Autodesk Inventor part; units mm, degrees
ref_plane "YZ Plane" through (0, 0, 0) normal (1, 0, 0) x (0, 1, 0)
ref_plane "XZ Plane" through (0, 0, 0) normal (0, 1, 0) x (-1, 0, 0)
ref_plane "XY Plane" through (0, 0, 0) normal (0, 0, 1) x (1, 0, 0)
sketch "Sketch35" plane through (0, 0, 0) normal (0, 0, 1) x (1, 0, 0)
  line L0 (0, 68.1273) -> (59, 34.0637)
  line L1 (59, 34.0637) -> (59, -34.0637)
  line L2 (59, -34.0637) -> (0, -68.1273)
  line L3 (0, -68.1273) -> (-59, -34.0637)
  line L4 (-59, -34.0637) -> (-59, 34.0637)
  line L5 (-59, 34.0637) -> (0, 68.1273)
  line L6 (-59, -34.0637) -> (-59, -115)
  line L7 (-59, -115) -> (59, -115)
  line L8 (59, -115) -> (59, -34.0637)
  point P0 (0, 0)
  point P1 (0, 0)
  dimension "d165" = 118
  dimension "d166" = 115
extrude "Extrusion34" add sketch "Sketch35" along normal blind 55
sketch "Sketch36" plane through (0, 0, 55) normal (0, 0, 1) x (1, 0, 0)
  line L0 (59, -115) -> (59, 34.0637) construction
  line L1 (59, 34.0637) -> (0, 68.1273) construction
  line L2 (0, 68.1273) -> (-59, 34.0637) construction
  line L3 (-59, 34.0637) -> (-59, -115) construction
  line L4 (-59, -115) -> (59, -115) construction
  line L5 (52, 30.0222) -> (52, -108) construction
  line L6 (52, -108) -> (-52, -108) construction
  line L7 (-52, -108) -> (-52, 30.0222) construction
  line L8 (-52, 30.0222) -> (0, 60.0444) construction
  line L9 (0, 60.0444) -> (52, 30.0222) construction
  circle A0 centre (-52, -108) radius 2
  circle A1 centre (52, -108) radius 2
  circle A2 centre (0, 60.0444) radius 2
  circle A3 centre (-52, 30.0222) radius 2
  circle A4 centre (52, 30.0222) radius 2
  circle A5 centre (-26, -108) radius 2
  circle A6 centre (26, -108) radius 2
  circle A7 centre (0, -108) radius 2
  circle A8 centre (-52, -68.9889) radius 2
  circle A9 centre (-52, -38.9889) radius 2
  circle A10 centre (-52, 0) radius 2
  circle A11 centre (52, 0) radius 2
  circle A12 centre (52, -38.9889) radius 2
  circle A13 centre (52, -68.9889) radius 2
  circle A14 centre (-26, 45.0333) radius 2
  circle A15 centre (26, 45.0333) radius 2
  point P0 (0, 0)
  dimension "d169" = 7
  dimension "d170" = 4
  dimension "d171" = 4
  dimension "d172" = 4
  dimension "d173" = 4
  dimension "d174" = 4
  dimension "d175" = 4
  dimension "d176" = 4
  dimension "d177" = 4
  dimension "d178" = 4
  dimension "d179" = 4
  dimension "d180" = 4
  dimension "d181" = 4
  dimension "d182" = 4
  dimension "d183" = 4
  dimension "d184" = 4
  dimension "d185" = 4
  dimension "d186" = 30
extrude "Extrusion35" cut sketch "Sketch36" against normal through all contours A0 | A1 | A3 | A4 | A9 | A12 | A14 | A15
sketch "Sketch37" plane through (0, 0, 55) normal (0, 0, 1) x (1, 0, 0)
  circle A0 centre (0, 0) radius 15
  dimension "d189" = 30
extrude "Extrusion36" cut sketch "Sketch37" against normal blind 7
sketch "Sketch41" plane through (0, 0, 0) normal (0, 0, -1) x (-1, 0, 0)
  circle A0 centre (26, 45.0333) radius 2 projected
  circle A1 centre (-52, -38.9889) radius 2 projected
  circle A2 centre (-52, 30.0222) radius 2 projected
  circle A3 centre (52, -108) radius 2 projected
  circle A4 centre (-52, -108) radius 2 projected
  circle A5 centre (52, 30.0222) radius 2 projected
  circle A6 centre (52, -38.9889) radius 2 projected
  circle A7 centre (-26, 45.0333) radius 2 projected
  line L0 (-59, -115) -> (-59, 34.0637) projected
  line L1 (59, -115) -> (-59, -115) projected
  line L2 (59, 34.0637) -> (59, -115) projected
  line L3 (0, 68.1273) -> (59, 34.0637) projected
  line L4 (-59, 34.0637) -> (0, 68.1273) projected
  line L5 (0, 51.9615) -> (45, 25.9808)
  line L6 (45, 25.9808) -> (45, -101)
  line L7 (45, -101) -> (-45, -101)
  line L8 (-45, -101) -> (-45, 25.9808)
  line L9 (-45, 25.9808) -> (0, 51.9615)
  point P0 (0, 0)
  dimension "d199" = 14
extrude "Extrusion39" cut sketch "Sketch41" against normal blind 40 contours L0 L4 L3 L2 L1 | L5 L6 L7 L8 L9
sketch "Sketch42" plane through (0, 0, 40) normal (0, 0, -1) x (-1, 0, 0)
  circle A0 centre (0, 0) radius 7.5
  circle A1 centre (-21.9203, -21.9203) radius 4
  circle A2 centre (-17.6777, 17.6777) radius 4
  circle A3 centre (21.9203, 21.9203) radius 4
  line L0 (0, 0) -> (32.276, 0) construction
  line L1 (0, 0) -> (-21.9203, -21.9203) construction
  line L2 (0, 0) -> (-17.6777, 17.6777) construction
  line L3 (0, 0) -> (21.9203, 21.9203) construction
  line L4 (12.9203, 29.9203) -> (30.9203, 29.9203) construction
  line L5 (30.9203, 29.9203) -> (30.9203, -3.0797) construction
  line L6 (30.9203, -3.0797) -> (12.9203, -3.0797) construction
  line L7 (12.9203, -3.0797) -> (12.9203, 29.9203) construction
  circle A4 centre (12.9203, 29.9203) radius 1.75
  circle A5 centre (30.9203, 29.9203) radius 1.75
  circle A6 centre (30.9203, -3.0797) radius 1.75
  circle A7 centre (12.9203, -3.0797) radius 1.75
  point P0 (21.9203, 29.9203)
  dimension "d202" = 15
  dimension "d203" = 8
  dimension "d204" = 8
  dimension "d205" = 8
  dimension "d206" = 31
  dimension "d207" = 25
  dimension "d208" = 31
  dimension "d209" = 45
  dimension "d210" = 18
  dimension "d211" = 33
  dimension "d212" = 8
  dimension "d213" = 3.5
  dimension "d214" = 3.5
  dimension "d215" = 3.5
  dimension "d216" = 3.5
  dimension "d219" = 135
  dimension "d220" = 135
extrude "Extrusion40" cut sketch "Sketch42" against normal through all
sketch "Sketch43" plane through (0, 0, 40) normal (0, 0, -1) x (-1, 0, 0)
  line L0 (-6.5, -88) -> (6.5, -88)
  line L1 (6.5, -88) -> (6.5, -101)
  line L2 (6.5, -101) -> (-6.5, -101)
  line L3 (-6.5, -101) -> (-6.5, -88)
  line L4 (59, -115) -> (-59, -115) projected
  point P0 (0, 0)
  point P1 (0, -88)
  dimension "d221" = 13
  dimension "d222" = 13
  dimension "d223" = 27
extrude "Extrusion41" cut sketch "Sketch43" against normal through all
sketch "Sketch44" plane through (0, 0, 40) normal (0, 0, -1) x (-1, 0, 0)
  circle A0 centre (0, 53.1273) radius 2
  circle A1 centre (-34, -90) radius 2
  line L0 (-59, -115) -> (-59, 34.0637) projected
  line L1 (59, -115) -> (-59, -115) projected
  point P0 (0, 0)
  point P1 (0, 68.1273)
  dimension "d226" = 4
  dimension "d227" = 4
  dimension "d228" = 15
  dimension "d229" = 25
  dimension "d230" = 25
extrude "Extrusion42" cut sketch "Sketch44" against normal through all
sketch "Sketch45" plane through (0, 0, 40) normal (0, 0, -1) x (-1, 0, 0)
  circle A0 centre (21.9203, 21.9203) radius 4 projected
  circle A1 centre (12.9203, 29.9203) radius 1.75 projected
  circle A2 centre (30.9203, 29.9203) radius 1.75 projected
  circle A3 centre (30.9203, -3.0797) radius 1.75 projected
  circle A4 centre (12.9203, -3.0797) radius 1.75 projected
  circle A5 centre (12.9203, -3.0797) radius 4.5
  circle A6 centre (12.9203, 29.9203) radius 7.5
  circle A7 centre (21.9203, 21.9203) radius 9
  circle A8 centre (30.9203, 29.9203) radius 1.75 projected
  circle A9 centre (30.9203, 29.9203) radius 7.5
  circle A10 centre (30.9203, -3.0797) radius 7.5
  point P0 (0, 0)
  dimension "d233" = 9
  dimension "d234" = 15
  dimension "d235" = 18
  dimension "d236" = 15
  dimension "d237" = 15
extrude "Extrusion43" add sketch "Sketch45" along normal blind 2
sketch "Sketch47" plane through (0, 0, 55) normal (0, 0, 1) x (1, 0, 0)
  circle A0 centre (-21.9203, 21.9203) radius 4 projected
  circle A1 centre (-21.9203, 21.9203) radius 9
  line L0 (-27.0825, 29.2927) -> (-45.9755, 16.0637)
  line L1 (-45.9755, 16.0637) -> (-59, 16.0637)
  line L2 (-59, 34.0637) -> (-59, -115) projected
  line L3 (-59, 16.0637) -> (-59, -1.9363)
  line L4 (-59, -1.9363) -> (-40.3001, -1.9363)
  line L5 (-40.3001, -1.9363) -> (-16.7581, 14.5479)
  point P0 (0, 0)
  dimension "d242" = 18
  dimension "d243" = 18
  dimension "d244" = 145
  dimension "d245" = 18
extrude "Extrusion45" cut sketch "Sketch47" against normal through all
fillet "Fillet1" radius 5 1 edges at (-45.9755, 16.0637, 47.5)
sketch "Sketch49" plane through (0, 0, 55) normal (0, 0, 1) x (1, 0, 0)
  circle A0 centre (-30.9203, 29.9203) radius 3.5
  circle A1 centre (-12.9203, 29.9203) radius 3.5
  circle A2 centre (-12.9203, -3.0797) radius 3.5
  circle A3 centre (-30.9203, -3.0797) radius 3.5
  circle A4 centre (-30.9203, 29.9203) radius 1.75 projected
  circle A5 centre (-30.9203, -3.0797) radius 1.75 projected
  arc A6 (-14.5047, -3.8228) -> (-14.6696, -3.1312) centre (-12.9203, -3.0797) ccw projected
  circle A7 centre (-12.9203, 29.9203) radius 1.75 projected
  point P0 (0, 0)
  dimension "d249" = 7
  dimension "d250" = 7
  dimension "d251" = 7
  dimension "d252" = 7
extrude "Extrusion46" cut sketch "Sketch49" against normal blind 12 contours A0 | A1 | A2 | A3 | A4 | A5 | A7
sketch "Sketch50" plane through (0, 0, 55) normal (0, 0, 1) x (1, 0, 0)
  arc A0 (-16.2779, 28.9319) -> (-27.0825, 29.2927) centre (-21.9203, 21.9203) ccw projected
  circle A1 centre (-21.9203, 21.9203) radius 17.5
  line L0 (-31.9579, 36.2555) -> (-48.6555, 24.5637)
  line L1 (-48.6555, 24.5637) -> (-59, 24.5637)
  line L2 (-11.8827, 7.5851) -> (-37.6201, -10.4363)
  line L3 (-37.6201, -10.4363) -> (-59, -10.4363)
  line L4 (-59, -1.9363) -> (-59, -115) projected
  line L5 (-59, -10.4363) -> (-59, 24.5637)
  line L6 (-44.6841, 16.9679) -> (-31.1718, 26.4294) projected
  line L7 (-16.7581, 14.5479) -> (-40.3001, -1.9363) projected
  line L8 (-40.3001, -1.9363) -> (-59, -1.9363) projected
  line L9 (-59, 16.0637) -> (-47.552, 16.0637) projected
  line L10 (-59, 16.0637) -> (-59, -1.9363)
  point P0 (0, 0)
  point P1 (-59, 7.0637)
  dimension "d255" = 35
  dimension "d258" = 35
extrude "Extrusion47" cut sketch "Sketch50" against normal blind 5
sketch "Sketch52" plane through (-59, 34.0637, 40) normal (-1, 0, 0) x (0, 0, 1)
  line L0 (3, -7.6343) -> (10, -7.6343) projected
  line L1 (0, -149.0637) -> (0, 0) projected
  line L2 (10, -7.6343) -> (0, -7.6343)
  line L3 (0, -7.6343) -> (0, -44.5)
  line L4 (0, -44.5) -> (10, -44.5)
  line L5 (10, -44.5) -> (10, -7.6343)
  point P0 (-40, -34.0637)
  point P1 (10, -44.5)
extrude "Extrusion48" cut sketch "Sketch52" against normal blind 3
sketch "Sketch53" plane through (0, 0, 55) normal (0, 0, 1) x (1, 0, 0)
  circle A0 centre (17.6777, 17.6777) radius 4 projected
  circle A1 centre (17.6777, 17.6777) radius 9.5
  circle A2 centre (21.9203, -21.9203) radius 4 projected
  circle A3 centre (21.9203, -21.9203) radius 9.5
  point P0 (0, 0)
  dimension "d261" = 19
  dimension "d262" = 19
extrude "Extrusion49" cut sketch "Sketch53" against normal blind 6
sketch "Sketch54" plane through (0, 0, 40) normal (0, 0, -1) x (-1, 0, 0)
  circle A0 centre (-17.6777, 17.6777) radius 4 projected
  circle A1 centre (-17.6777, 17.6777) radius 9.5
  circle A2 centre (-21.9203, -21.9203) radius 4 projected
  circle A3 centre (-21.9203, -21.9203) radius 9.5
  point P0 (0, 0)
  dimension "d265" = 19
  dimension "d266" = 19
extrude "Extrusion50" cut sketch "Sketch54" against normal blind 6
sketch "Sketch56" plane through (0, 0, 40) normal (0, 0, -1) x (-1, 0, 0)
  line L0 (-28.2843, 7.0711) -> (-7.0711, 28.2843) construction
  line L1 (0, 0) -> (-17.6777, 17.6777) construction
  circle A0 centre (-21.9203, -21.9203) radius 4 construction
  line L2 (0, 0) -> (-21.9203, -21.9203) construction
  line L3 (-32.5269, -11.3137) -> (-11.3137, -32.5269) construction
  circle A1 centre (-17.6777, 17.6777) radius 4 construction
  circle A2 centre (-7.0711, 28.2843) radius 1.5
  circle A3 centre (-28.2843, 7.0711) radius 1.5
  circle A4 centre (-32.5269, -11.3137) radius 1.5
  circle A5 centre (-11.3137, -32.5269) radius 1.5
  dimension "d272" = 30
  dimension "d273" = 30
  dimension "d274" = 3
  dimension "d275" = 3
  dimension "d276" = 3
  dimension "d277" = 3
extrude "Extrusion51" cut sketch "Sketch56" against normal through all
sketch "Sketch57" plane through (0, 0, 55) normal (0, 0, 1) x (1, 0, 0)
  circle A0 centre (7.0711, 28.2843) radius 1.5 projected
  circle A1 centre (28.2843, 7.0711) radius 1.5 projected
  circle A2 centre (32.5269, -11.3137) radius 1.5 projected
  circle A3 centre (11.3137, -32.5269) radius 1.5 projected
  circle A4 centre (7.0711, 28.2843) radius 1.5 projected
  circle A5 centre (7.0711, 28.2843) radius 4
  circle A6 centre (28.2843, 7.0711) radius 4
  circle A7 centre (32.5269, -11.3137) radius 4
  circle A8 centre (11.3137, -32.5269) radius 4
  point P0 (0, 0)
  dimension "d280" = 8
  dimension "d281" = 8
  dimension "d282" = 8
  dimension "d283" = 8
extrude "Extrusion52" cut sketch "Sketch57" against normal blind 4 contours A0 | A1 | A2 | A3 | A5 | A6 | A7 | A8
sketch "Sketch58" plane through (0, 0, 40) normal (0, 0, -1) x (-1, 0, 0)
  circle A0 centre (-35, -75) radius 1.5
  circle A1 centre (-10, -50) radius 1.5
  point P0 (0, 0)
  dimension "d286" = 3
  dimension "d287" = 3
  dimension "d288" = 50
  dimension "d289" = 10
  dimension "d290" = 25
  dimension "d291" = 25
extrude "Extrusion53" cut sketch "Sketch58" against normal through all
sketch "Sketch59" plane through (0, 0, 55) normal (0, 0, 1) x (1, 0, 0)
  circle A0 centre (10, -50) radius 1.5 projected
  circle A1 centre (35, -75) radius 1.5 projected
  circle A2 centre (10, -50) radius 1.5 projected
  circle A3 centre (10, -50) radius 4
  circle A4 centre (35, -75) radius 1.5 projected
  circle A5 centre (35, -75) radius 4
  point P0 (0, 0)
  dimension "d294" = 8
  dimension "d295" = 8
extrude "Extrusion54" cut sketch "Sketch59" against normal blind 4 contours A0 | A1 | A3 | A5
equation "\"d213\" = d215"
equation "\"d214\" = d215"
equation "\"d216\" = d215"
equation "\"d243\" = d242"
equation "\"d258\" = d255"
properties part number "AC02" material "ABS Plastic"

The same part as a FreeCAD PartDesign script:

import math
import FreeCAD as App
import Part
import Sketcher
from FreeCAD import Vector
Q = App.Units.Quantity


def edges_at(feature, points):
    """Names of the edges that pass closest to the given points."""
    edges = feature.Shape.Edges
    near = lambda p: min(range(len(edges)), key=lambda i: edges[i].distToShape(Part.Vertex(*p))[0])
    return sorted({f"Edge{near(p) + 1}" for p in points})

doc = App.newDocument("Part")
body = doc.addObject("PartDesign::Body", "Body")

# Sketch on XY plane
sketch1 = body.newObject("Sketcher::SketchObject", "Sketch")
sketch1.AttachmentSupport = (doc.getObject("XY_Plane"), [""])
sketch1.MapMode = "FlatFace"
sketch1.addGeometry([
    Part.LineSegment(Vector(59, 34.0637, 0), Vector(0, 68.1273, 0)),  # 0
    Part.LineSegment(Vector(0, 68.1273, 0), Vector(-59, 34.0637, 0)),  # 1
    Part.LineSegment(Vector(-59, 34.0637, 0), Vector(-59, -115, 0)),  # 2
    Part.LineSegment(Vector(-59, -115, 0), Vector(59, -115, 0)),  # 3
    Part.LineSegment(Vector(59, -115, 0), Vector(59, 34.0637, 0)),  # 4
], False)
sketch1.addConstraint([
    Sketcher.Constraint("Coincident", 0, 2, 1, 1),
    Sketcher.Constraint("Coincident", 1, 2, 2, 1),
    Sketcher.Constraint("Coincident", 2, 2, 3, 1),
    Sketcher.Constraint("Coincident", 3, 2, 4, 1),
    Sketcher.Constraint("Coincident", 4, 2, 0, 1),
    Sketcher.Constraint("Vertical", 2),
    Sketcher.Constraint("Horizontal", 3),
    Sketcher.Constraint("Vertical", 4),
    Sketcher.Constraint("Symmetric", 1, 2, 4, 2, -2),
    Sketcher.Constraint("PointOnObject", 0, 2, -2),
    Sketcher.Constraint("DistanceX", 3, 1, 3, 2, 118.0),
    Sketcher.Constraint("DistanceY", 2, 2, -1, 1, 115.0),
    Sketcher.Constraint("Angle", 0, Q("150 deg")),
    Sketcher.Constraint("DistanceY", 2, 2, 2, 1, 149.0637),
])
pad1 = body.newObject("PartDesign::Pad", "Pad")
pad1.Profile = sketch1
pad1.Length = 55

# Sketch on XY plane
sketch2 = body.newObject("Sketcher::SketchObject", "Sketch001")
sketch2.AttachmentSupport = (doc.getObject("XY_Plane"), [""])
sketch2.MapMode = "FlatFace"
sketch2.AttachmentOffset = App.Placement(Vector(0, 0, 55), App.Rotation())
sketch2.addGeometry([
    Part.Circle(Vector(-52, -108, 0), Vector(0, 0, 1), 2),  # 0
    Part.Circle(Vector(52, -108, 0), Vector(0, 0, 1), 2),  # 1
    Part.Circle(Vector(-52, 30.0222, 0), Vector(0, 0, 1), 2),  # 2
    Part.Circle(Vector(52, 30.0222, 0), Vector(0, 0, 1), 2),  # 3
    Part.Circle(Vector(-52, -38.9889, 0), Vector(0, 0, 1), 2),  # 4
    Part.Circle(Vector(52, -38.9889, 0), Vector(0, 0, 1), 2),  # 5
    Part.Circle(Vector(-26, 45.0333, 0), Vector(0, 0, 1), 2),  # 6
    Part.Circle(Vector(26, 45.0333, 0), Vector(0, 0, 1), 2),  # 7
], False)
sketch2.addConstraint([
    Sketcher.Constraint("Equal", 0, 1),
    Sketcher.Constraint("Equal", 1, 2),
    Sketcher.Constraint("Equal", 2, 3),
    Sketcher.Constraint("Equal", 3, 4),
    Sketcher.Constraint("Equal", 4, 5),
    Sketcher.Constraint("Equal", 5, 6),
    Sketcher.Constraint("Equal", 6, 7),
    Sketcher.Constraint("Symmetric", 0, 3, 1, 3, -2),
    Sketcher.Constraint("Symmetric", 2, 3, 3, 3, -2),
    Sketcher.Constraint("Symmetric", 4, 3, 5, 3, -2),
    Sketcher.Constraint("Symmetric", 6, 3, 7, 3, -2),
    Sketcher.Constraint("Vertical", 0, 3, 2, 3),
    Sketcher.Constraint("Vertical", 2, 3, 4, 3),
    Sketcher.Constraint("Diameter", 0, 4.0),
    Sketcher.Constraint("DistanceX", 0, 3, -1, 1, 52.0),
    Sketcher.Constraint("DistanceY", 0, 3, -1, 1, 108.0),
    Sketcher.Constraint("DistanceX", 6, 3, -1, 1, 26.0),
    Sketcher.Constraint("DistanceY", 4, 3, -1, 1, 38.989),
    Sketcher.Constraint("DistanceY", 4, 3, 2, 3, 69.011),
    Sketcher.Constraint("DistanceY", 2, 3, 6, 3, 15.011),
])
pocket1 = body.newObject("PartDesign::Pocket", "Pocket")
pocket1.Profile = sketch2
pocket1.Type = "ThroughAll"

# Sketch on XY plane
sketch3 = body.newObject("Sketcher::SketchObject", "Sketch002")
sketch3.AttachmentSupport = (doc.getObject("XY_Plane"), [""])
sketch3.MapMode = "FlatFace"
sketch3.AttachmentOffset = App.Placement(Vector(0, 0, 55), App.Rotation())
sketch3.addGeometry(Part.Circle(Vector(0, 0, 0), Vector(0, 0, 1), 15), False)
sketch3.addConstraint([
    Sketcher.Constraint("Coincident", 0, 3, -1, 1),
    Sketcher.Constraint("Diameter", 0, 30.0),
])
pocket2 = body.newObject("PartDesign::Pocket", "Pocket001")
pocket2.Profile = sketch3
pocket2.Length = 7

# Sketch on XY plane
sketch4 = body.newObject("Sketcher::SketchObject", "Sketch003")
sketch4.AttachmentSupport = (doc.getObject("XY_Plane"), [""])
sketch4.MapMode = "FlatFace"
sketch4.addGeometry([
    Part.LineSegment(Vector(59, 34.0637, 0), Vector(59, -115, 0)),  # 0
    Part.LineSegment(Vector(59, -115, 0), Vector(-59, -115, 0)),  # 1
    Part.LineSegment(Vector(-59, -115, 0), Vector(-59, 34.0637, 0)),  # 2
    Part.LineSegment(Vector(-59, 34.0637, 0), Vector(0, 68.1273, 0)),  # 3
    Part.LineSegment(Vector(0, 68.1273, 0), Vector(59, 34.0637, 0)),  # 4
    Part.Circle(Vector(52, -108, 0), Vector(0, 0, 1), 2),  # 5
    Part.Circle(Vector(52, -38.9889, 0), Vector(0, 0, 1), 2),  # 6
    Part.Circle(Vector(-52, -108, 0), Vector(0, 0, 1), 2),  # 7
    Part.Circle(Vector(-52, -38.9889, 0), Vector(0, 0, 1), 2),  # 8
    Part.Circle(Vector(52, 30.0222, 0), Vector(0, 0, 1), 2),  # 9
    Part.Circle(Vector(26, 45.0333, 0), Vector(0, 0, 1), 2),  # 10
    Part.Circle(Vector(-26, 45.0333, 0), Vector(0, 0, 1), 2),  # 11
    Part.Circle(Vector(-52, 30.0222, 0), Vector(0, 0, 1), 2),  # 12
], False)
sketch4.addConstraint([
    Sketcher.Constraint("Coincident", 0, 2, 1, 1),
    Sketcher.Constraint("Coincident", 1, 2, 2, 1),
    Sketcher.Constraint("Coincident", 2, 2, 3, 1),
    Sketcher.Constraint("Coincident", 3, 2, 4, 1),
    Sketcher.Constraint("Coincident", 4, 2, 0, 1),
    Sketcher.Constraint("Vertical", 0),
    Sketcher.Constraint("Horizontal", 1),
    Sketcher.Constraint("Vertical", 2),
    Sketcher.Constraint("Equal", 5, 6),
    Sketcher.Constraint("Equal", 6, 7),
    Sketcher.Constraint("Equal", 7, 8),
    Sketcher.Constraint("Equal", 8, 9),
    Sketcher.Constraint("Equal", 9, 10),
    Sketcher.Constraint("Equal", 10, 11),
    Sketcher.Constraint("Equal", 11, 12),
    Sketcher.Constraint("Symmetric", 5, 3, 7, 3, -2),
    Sketcher.Constraint("Symmetric", 6, 3, 8, 3, -2),
    Sketcher.Constraint("Symmetric", 10, 3, 11, 3, -2),
    Sketcher.Constraint("Symmetric", 9, 3, 12, 3, -2),
    Sketcher.Constraint("Symmetric", 2, 2, 4, 2, -2),
    Sketcher.Constraint("PointOnObject", 3, 2, -2),
    Sketcher.Constraint("Vertical", 5, 3, 6, 3),
    Sketcher.Constraint("Vertical", 6, 3, 9, 3),
    Sketcher.Constraint("Diameter", 5, 4.0),
    Sketcher.Constraint("DistanceX", 1, 2, 1, 1, 118.0),
    Sketcher.Constraint("Angle", 3, Q("30 deg")),
    Sketcher.Constraint("DistanceX", -1, 1, 5, 3, 52.0),
    Sketcher.Constraint("DistanceY", 5, 3, -1, 1, 108.0),
    Sketcher.Constraint("DistanceX", -1, 1, 10, 3, 26.0),
    Sketcher.Constraint("DistanceY", 0, 2, -1, 1, 115.0),
    Sketcher.Constraint("DistanceY", 0, 2, 0, 1, 149.0637),
    Sketcher.Constraint("DistanceY", 6, 3, -1, 1, 38.989),
    Sketcher.Constraint("DistanceY", 6, 3, 9, 3, 69.011),
    Sketcher.Constraint("DistanceY", 9, 3, 10, 3, 15.011),
])
pocket3 = body.newObject("PartDesign::Pocket", "Pocket002")
pocket3.Profile = sketch4
pocket3.Length = 40
pocket3.Reversed = True

# Sketch on XY plane
sketch5 = body.newObject("Sketcher::SketchObject", "Sketch004")
sketch5.AttachmentSupport = (doc.getObject("XY_Plane"), [""])
sketch5.MapMode = "FlatFace"
sketch5.AttachmentOffset = App.Placement(Vector(0, 0, 40), App.Rotation())
sketch5.addGeometry([
    Part.Circle(Vector(0, 0, 0), Vector(0, 0, 1), 7.5),  # 0
    Part.Circle(Vector(21.9203, -21.9203, 0), Vector(0, 0, 1), 4),  # 1
    Part.Circle(Vector(17.6777, 17.6777, 0), Vector(0, 0, 1), 4),  # 2
    Part.Circle(Vector(-21.9203, 21.9203, 0), Vector(0, 0, 1), 4),  # 3
    Part.Circle(Vector(-12.9203, 29.9203, 0), Vector(0, 0, 1), 1.75),  # 4
    Part.Circle(Vector(-30.9203, 29.9203, 0), Vector(0, 0, 1), 1.75),  # 5
    Part.Circle(Vector(-30.9203, -3.0797, 0), Vector(0, 0, 1), 1.75),  # 6
    Part.Circle(Vector(-12.9203, -3.0797, 0), Vector(0, 0, 1), 1.75),  # 7
], False)
sketch5.addConstraint([
    Sketcher.Constraint("Coincident", 0, 3, -1, 1),
    Sketcher.Constraint("Equal", 1, 2),
    Sketcher.Constraint("Equal", 2, 3),
    Sketcher.Constraint("Equal", 4, 5),
    Sketcher.Constraint("Equal", 5, 6),
    Sketcher.Constraint("Equal", 6, 7),
    Sketcher.Constraint("Symmetric", 1, 3, 3, 3, -1, 1),
    Sketcher.Constraint("Horizontal", 4, 3, 5, 3),
    Sketcher.Constraint("Horizontal", 6, 3, 7, 3),
    Sketcher.Constraint("Vertical", 5, 3, 6, 3),
    Sketcher.Constraint("Vertical", 4, 3, 7, 3),
    Sketcher.Constraint("Diameter", 0, 15.0),
    Sketcher.Constraint("Diameter", 1, 8.0),
    Sketcher.Constraint("Diameter", 4, 3.5),
    Sketcher.Constraint("DistanceY", 3, 3, 4, 3, 8.0),
    Sketcher.Constraint("DistanceX", 5, 3, 4, 3, 18.0),
    Sketcher.Constraint("DistanceY", 6, 3, 3, 3, 25.0),
    Sketcher.Constraint("DistanceX", 3, 3, 4, 3, 9.0),
    Sketcher.Constraint("DistanceY", 1, 3, 2, 3, 39.598),
    Sketcher.Constraint("DistanceX", 3, 3, 2, 3, 39.598),
    Sketcher.Constraint("DistanceX", -1, 1, 1, 3, 21.9203),
    Sketcher.Constraint("DistanceY", 1, 3, -1, 1, 21.9203),
])
pocket4 = body.newObject("PartDesign::Pocket", "Pocket003")
pocket4.Profile = sketch5
pocket4.Type = "ThroughAll"
pocket4.Reversed = True

# Sketch on XY plane
sketch6 = body.newObject("Sketcher::SketchObject", "Sketch005")
sketch6.AttachmentSupport = (doc.getObject("XY_Plane"), [""])
sketch6.MapMode = "FlatFace"
sketch6.AttachmentOffset = App.Placement(Vector(0, 0, 40), App.Rotation())
sketch6.addGeometry([
    Part.LineSegment(Vector(-6.5, -88, 0), Vector(6.5, -88, 0)),
    Part.LineSegment(Vector(6.5, -88, 0), Vector(6.5, -101, 0)),
    Part.LineSegment(Vector(6.5, -101, 0), Vector(-6.5, -101, 0)),
    Part.LineSegment(Vector(-6.5, -101, 0), Vector(-6.5, -88, 0)),
], False)
sketch6.addConstraint([
    Sketcher.Constraint("Coincident", 0, 2, 1, 1),
    Sketcher.Constraint("Coincident", 1, 2, 2, 1),
    Sketcher.Constraint("Coincident", 2, 2, 3, 1),
    Sketcher.Constraint("Coincident", 3, 2, 0, 1),
    Sketcher.Constraint("Horizontal", 0),
    Sketcher.Constraint("Vertical", 1),
    Sketcher.Constraint("Horizontal", 2),
    Sketcher.Constraint("Vertical", 3),
    Sketcher.Constraint("Equal", 2, 1),
    Sketcher.Constraint("DistanceX", 0, 1, 0, 2, 13.0),
    Sketcher.Constraint("DistanceY", 0, 2, -1, 1, 88.0),
    Sketcher.Constraint("DistanceX", -1, 1, 0, 2, 6.5),
])
pocket5 = body.newObject("PartDesign::Pocket", "Pocket004")
pocket5.Profile = sketch6
pocket5.Type = "ThroughAll"
pocket5.Reversed = True

# Sketch on XY plane
sketch7 = body.newObject("Sketcher::SketchObject", "Sketch006")
sketch7.AttachmentSupport = (doc.getObject("XY_Plane"), [""])
sketch7.MapMode = "FlatFace"
sketch7.AttachmentOffset = App.Placement(Vector(0, 0, 40), App.Rotation())
sketch7.addGeometry([
    Part.Circle(Vector(0, 53.1273, 0), Vector(0, 0, 1), 2),
    Part.Circle(Vector(34, -90, 0), Vector(0, 0, 1), 2),
], False)
sketch7.addConstraint([
    Sketcher.Constraint("Equal", 0, 1),
    Sketcher.Constraint("PointOnObject", 0, 3, -2),
    Sketcher.Constraint("Diameter", 0, 4.0),
    Sketcher.Constraint("DistanceX", -1, 1, 1, 3, 34.0),
    Sketcher.Constraint("DistanceY", 1, 3, -1, 1, 90.0),
    Sketcher.Constraint("DistanceY", -1, 1, 0, 3, 53.1273),
])
pocket6 = body.newObject("PartDesign::Pocket", "Pocket005")
pocket6.Profile = sketch7
pocket6.Type = "ThroughAll"
pocket6.Reversed = True

# Sketch on XY plane
sketch8 = body.newObject("Sketcher::SketchObject", "Sketch007")
sketch8.AttachmentSupport = (doc.getObject("XY_Plane"), [""])
sketch8.MapMode = "FlatFace"
sketch8.AttachmentOffset = App.Placement(Vector(0, 0, 40), App.Rotation())
sketch8.addGeometry([
    Part.Circle(Vector(-12.9203, -3.0797, 0), Vector(0, 0, 1), 4.5),  # 0
    Part.Circle(Vector(-12.9203, -3.0797, 0), Vector(0, 0, 1), 1.75),  # 1
    Part.ArcOfCircle(Part.Circle(Vector(-21.9203, 21.9203, 0), Vector(0, 0, 1), 9), math.radians(80.082258), math.radians(99.917742)),  # 2
    Part.ArcOfCircle(Part.Circle(Vector(-12.9203, 29.9203, 0), Vector(0, 0, 1), 7.5), math.radians(-90.106191), math.radians(173.37327)),  # 3
    Part.ArcOfCircle(Part.Circle(Vector(-21.9203, 21.9203, 0), Vector(0, 0, 1), 9), math.radians(176.815179), math.radians(363.184821)),  # 4
    Part.ArcOfCircle(Part.Circle(Vector(-30.9203, 29.9203, 0), Vector(0, 0, 1), 7.5), math.radians(6.62673), math.radians(270.106191)),  # 5
    Part.Circle(Vector(-21.9203, 21.9203, 0), Vector(0, 0, 1), 4),  # 6
    Part.Circle(Vector(-12.9203, 29.9203, 0), Vector(0, 0, 1), 1.75),  # 7
    Part.Circle(Vector(-30.9203, 29.9203, 0), Vector(0, 0, 1), 1.75),  # 8
    Part.Circle(Vector(-30.9203, -3.0797, 0), Vector(0, 0, 1), 7.5),  # 9
    Part.Circle(Vector(-30.9203, -3.0797, 0), Vector(0, 0, 1), 1.75),  # 10
], False)
sketch8.addConstraint([
    Sketcher.Constraint("Coincident", 2, 1, 3, 2),
    Sketcher.Constraint("Coincident", 3, 1, 4, 2),
    Sketcher.Constraint("Coincident", 4, 1, 5, 2),
    Sketcher.Constraint("Coincident", 5, 1, 2, 2),
    Sketcher.Constraint("Coincident", 1, 3, 0, 3),
    Sketcher.Constraint("Coincident", 4, 3, 2, 3),
    Sketcher.Constraint("Coincident", 6, 3, 2, 3),
    Sketcher.Constraint("Coincident", 7, 3, 3, 3),
    Sketcher.Constraint("Coincident", 8, 3, 5, 3),
    Sketcher.Constraint("Coincident", 10, 3, 9, 3),
    Sketcher.Constraint("Equal", 2, 4),
    Sketcher.Constraint("Equal", 3, 5),
    Sketcher.Constraint("Equal", 1, 7),
    Sketcher.Constraint("Equal", 7, 8),
    Sketcher.Constraint("Equal", 5, 9),
    Sketcher.Constraint("Equal", 8, 10),
    Sketcher.Constraint("Horizontal", 3, 3, 5, 3),
    Sketcher.Constraint("Horizontal", 1, 3, 9, 3),
    Sketcher.Constraint("Horizontal", 2, 1, 5, 1),
    Sketcher.Constraint("Vertical", 1, 3, 3, 3),
    Sketcher.Constraint("Vertical", 8, 3, 9, 3),
    Sketcher.Constraint("Diameter", 0, 9.0),
    Sketcher.Constraint("Diameter", 9, 15.0),
    Sketcher.Constraint("Radius", 2, 9.0),
    Sketcher.Constraint("Diameter", 6, 8.0),
    Sketcher.Constraint("DistanceX", 2, 3, 0, 3, 9.0),
    Sketcher.Constraint("Diameter", 1, 3.5),
    Sketcher.Constraint("DistanceY", 0, 3, 2, 3, 25.0),
    Sketcher.Constraint("DistanceY", 2, 3, 3, 3, 8.0),
    Sketcher.Constraint("DistanceX", 0, 3, -1, 1, 12.9203),
    Sketcher.Constraint("DistanceY", 0, 3, -1, 1, 3.0797),
])
pad2 = body.newObject("PartDesign::Pad", "Pad001")
pad2.Profile = sketch8
pad2.Length = 2
pad2.Reversed = True

# Sketch on XY plane
sketch9 = body.newObject("Sketcher::SketchObject", "Sketch008")
sketch9.AttachmentSupport = (doc.getObject("XY_Plane"), [""])
sketch9.MapMode = "FlatFace"
sketch9.AttachmentOffset = App.Placement(Vector(0, 0, 55), App.Rotation())
sketch9.addGeometry([
    Part.ArcOfCircle(Part.Circle(Vector(-21.9203, 21.9203, 0), Vector(0, 0, 1), 9), math.radians(-55.000052), math.radians(124.999948)),  # 0
    Part.LineSegment(Vector(-27.0825, 29.2927, 0), Vector(-45.9755, 16.0637, 0)),  # 1
    Part.LineSegment(Vector(-45.9755, 16.0637, 0), Vector(-59, 16.0637, 0)),  # 2
    Part.LineSegment(Vector(-59, 16.0637, 0), Vector(-59, -1.9363, 0)),  # 3
    Part.LineSegment(Vector(-59, -1.9363, 0), Vector(-40.3001, -1.9363, 0)),  # 4
    Part.LineSegment(Vector(-40.3001, -1.9363, 0), Vector(-16.7581, 14.5479, 0)),  # 5
    Part.Circle(Vector(-21.9203, 21.9203, 0), Vector(0, 0, 1), 4),  # 6
], False)
sketch9.addConstraint([
    Sketcher.Constraint("Tangent", 0, 2, 1, 1),
    Sketcher.Constraint("Coincident", 1, 2, 2, 1),
    Sketcher.Constraint("Coincident", 2, 2, 3, 1),
    Sketcher.Constraint("Coincident", 3, 2, 4, 1),
    Sketcher.Constraint("Coincident", 4, 2, 5, 1),
    Sketcher.Constraint("Tangent", 5, 2, 0, 1),
    Sketcher.Constraint("Horizontal", 2),
    Sketcher.Constraint("Vertical", 3),
    Sketcher.Constraint("Horizontal", 4),
    Sketcher.Constraint("Coincident", 6, 3, 0, 3),
    Sketcher.Constraint("Parallel", 1, 5),
    Sketcher.Constraint("Radius", 0, 9.0),
    Sketcher.Constraint("DistanceY", 3, 2, 3, 1, 18.0),
    Sketcher.Constraint("Angle", 1, Q("-145 deg")),
    Sketcher.Constraint("Diameter", 6, 8.0),
    Sketcher.Constraint("DistanceX", 4, 1, 4, 2, 18.7),
    Sketcher.Constraint("DistanceX", 2, 2, -1, 1, 59.0),
    Sketcher.Constraint("Distance", 1, 23.064),
    Sketcher.Constraint("DistanceY", -1, 1, 5, 2, 14.548),
])
pocket7 = body.newObject("PartDesign::Pocket", "Pocket006")
pocket7.Profile = sketch9
pocket7.Type = "ThroughAll"
doc.recompute()

fillet = body.newObject("PartDesign::Fillet", "Fillet")
fillet.Base = (pocket7, edges_at(pocket7, [(-45.975, 16.064, 47.5)]))
fillet.Radius = 5

# Sketch on XY plane
sketch10 = body.newObject("Sketcher::SketchObject", "Sketch009")
sketch10.AttachmentSupport = (doc.getObject("XY_Plane"), [""])
sketch10.MapMode = "FlatFace"
sketch10.AttachmentOffset = App.Placement(Vector(0, 0, 55), App.Rotation())
sketch10.addGeometry([
    Part.Circle(Vector(-30.9203, 29.9203, 0), Vector(0, 0, 1), 3.5),
    Part.Circle(Vector(-12.9203, 29.9203, 0), Vector(0, 0, 1), 3.5),
    Part.Circle(Vector(-12.9203, -3.0797, 0), Vector(0, 0, 1), 3.5),
    Part.Circle(Vector(-30.9203, -3.0797, 0), Vector(0, 0, 1), 3.5),
], False)
sketch10.addConstraint([
    Sketcher.Constraint("Equal", 0, 1),
    Sketcher.Constraint("Equal", 1, 2),
    Sketcher.Constraint("Equal", 2, 3),
    Sketcher.Constraint("Horizontal", 0, 3, 1, 3),
    Sketcher.Constraint("Horizontal", 2, 3, 3, 3),
    Sketcher.Constraint("Vertical", 1, 3, 2, 3),
    Sketcher.Constraint("Vertical", 0, 3, 3, 3),
    Sketcher.Constraint("Diameter", 0, 7.0),
    Sketcher.Constraint("DistanceX", 0, 3, 1, 3, 18.0),
    Sketcher.Constraint("DistanceY", 2, 3, 1, 3, 33.0),
    Sketcher.Constraint("DistanceX", 0, 3, -1, 1, 30.9203),
    Sketcher.Constraint("DistanceY", -1, 1, 0, 3, 29.9203),
])
pocket8 = body.newObject("PartDesign::Pocket", "Pocket007")
pocket8.Profile = sketch10
pocket8.Length = 12

# Sketch on XY plane
sketch11 = body.newObject("Sketcher::SketchObject", "Sketch010")
sketch11.AttachmentSupport = (doc.getObject("XY_Plane"), [""])
sketch11.MapMode = "FlatFace"
sketch11.AttachmentOffset = App.Placement(Vector(0, 0, 55), App.Rotation())
sketch11.addGeometry([
    Part.ArcOfCircle(Part.Circle(Vector(-21.9203, 21.9203, 0), Vector(0, 0, 1), 17.5), math.radians(-55.000041), math.radians(124.999959)),  # 0
    Part.LineSegment(Vector(-31.9579, 36.2555, 0), Vector(-48.6555, 24.5637, 0)),  # 1
    Part.LineSegment(Vector(-48.6555, 24.5637, 0), Vector(-59, 24.5637, 0)),  # 2
    Part.LineSegment(Vector(-59, 24.5637, 0), Vector(-59, -10.4363, 0)),  # 3
    Part.LineSegment(Vector(-59, -10.4363, 0), Vector(-37.6201, -10.4363, 0)),  # 4
    Part.LineSegment(Vector(-37.6201, -10.4363, 0), Vector(-11.8827, 7.5851, 0)),  # 5
], False)
sketch11.addConstraint([
    Sketcher.Constraint("Tangent", 0, 2, 1, 1),
    Sketcher.Constraint("Coincident", 1, 2, 2, 1),
    Sketcher.Constraint("Coincident", 2, 2, 3, 1),
    Sketcher.Constraint("Coincident", 3, 2, 4, 1),
    Sketcher.Constraint("Coincident", 4, 2, 5, 1),
    Sketcher.Constraint("Tangent", 5, 2, 0, 1),
    Sketcher.Constraint("Horizontal", 2),
    Sketcher.Constraint("Vertical", 3),
    Sketcher.Constraint("Horizontal", 4),
    Sketcher.Constraint("Parallel", 1, 5),
    Sketcher.Constraint("Radius", 0, 17.5),
    Sketcher.Constraint("DistanceY", 3, 2, 3, 1, 35.0),
    Sketcher.Constraint("Angle", 5, Q("34.9998 deg")),
    Sketcher.Constraint("DistanceX", 2, 2, -1, 1, 59.0),
    Sketcher.Constraint("DistanceX", 4, 1, 4, 2, 21.38),
    Sketcher.Constraint("Distance", 1, 20.384),
    Sketcher.Constraint("DistanceY", -1, 1, 5, 2, 7.585),
])
pocket9 = body.newObject("PartDesign::Pocket", "Pocket008")
pocket9.Profile = sketch11
pocket9.Length = 5

# Sketch on YZ plane
sketch12 = body.newObject("Sketcher::SketchObject", "Sketch011")
sketch12.AttachmentSupport = (doc.getObject("YZ_Plane"), [""])
sketch12.MapMode = "FlatFace"
sketch12.AttachmentOffset = App.Placement(Vector(0, 0, -59), App.Rotation())
sketch12.addGeometry([
    Part.LineSegment(Vector(26.4294, 50, 0), Vector(26.4294, 40, 0)),
    Part.LineSegment(Vector(26.4294, 40, 0), Vector(-10.4363, 40, 0)),
    Part.LineSegment(Vector(-10.4363, 40, 0), Vector(-10.4363, 50, 0)),
    Part.LineSegment(Vector(-10.4363, 50, 0), Vector(26.4294, 50, 0)),
], False)
sketch12.addConstraint([
    Sketcher.Constraint("Coincident", 0, 2, 1, 1),
    Sketcher.Constraint("Coincident", 1, 2, 2, 1),
    Sketcher.Constraint("Coincident", 2, 2, 3, 1),
    Sketcher.Constraint("Coincident", 3, 2, 0, 1),
    Sketcher.Constraint("Vertical", 0),
    Sketcher.Constraint("Horizontal", 1),
    Sketcher.Constraint("Vertical", 2),
    Sketcher.Constraint("Horizontal", 3),
    Sketcher.Constraint("DistanceY", 0, 2, 0, 1, 10.0),
    Sketcher.Constraint("DistanceY", -1, 1, 0, 2, 40.0),
    Sketcher.Constraint("DistanceX", 1, 2, 1, 1, 36.8657),
    Sketcher.Constraint("DistanceX", -1, 1, 0, 2, 26.4294),
])
pocket10 = body.newObject("PartDesign::Pocket", "Pocket009")
pocket10.Profile = sketch12
pocket10.Length = 3
pocket10.Reversed = True

# Sketch on XY plane
sketch13 = body.newObject("Sketcher::SketchObject", "Sketch012")
sketch13.AttachmentSupport = (doc.getObject("XY_Plane"), [""])
sketch13.MapMode = "FlatFace"
sketch13.AttachmentOffset = App.Placement(Vector(0, 0, 55), App.Rotation())
sketch13.addGeometry([
    Part.Circle(Vector(17.6777, 17.6777, 0), Vector(0, 0, 1), 9.5),
    Part.Circle(Vector(17.6777, 17.6777, 0), Vector(0, 0, 1), 4),
    Part.Circle(Vector(21.9203, -21.9203, 0), Vector(0, 0, 1), 9.5),
    Part.Circle(Vector(21.9203, -21.9203, 0), Vector(0, 0, 1), 4),
], False)
sketch13.addConstraint([
    Sketcher.Constraint("Coincident", 1, 3, 0, 3),
    Sketcher.Constraint("Coincident", 3, 3, 2, 3),
    Sketcher.Constraint("Equal", 0, 2),
    Sketcher.Constraint("Equal", 1, 3),
    Sketcher.Constraint("Diameter", 0, 19.0),
    Sketcher.Constraint("Diameter", 1, 8.0),
    Sketcher.Constraint("DistanceY", 2, 3, 0, 3, 39.598),
    Sketcher.Constraint("DistanceX", -1, 1, 0, 3, 17.6777),
    Sketcher.Constraint("DistanceY", -1, 1, 0, 3, 17.6777),
    Sketcher.Constraint("DistanceX", -1, 1, 2, 3, 21.9203),
])
pocket11 = body.newObject("PartDesign::Pocket", "Pocket010")
pocket11.Profile = sketch13
pocket11.Length = 6

# Sketch on XY plane
sketch14 = body.newObject("Sketcher::SketchObject", "Sketch013")
sketch14.AttachmentSupport = (doc.getObject("XY_Plane"), [""])
sketch14.MapMode = "FlatFace"
sketch14.AttachmentOffset = App.Placement(Vector(0, 0, 40), App.Rotation())
sketch14.addGeometry([
    Part.Circle(Vector(17.6777, 17.6777, 0), Vector(0, 0, 1), 9.5),
    Part.Circle(Vector(17.6777, 17.6777, 0), Vector(0, 0, 1), 4),
    Part.Circle(Vector(21.9203, -21.9203, 0), Vector(0, 0, 1), 9.5),
    Part.Circle(Vector(21.9203, -21.9203, 0), Vector(0, 0, 1), 4),
], False)
sketch14.addConstraint([
    Sketcher.Constraint("Coincident", 1, 3, 0, 3),
    Sketcher.Constraint("Coincident", 3, 3, 2, 3),
    Sketcher.Constraint("Equal", 0, 2),
    Sketcher.Constraint("Equal", 1, 3),
    Sketcher.Constraint("Diameter", 0, 19.0),
    Sketcher.Constraint("Diameter", 1, 8.0),
    Sketcher.Constraint("DistanceY", 2, 3, 0, 3, 39.598),
    Sketcher.Constraint("DistanceX", -1, 1, 0, 3, 17.6777),
    Sketcher.Constraint("DistanceY", -1, 1, 0, 3, 17.6777),
    Sketcher.Constraint("DistanceX", -1, 1, 2, 3, 21.9203),
])
pocket12 = body.newObject("PartDesign::Pocket", "Pocket011")
pocket12.Profile = sketch14
pocket12.Length = 6
pocket12.Reversed = True

# Sketch on XY plane
sketch15 = body.newObject("Sketcher::SketchObject", "Sketch014")
sketch15.AttachmentSupport = (doc.getObject("XY_Plane"), [""])
sketch15.MapMode = "FlatFace"
sketch15.AttachmentOffset = App.Placement(Vector(0, 0, 40), App.Rotation())
sketch15.addGeometry([
    Part.Circle(Vector(7.0711, 28.2843, 0), Vector(0, 0, 1), 1.5),
    Part.Circle(Vector(28.2843, 7.0711, 0), Vector(0, 0, 1), 1.5),
    Part.Circle(Vector(32.5269, -11.3137, 0), Vector(0, 0, 1), 1.5),
    Part.Circle(Vector(11.3137, -32.5269, 0), Vector(0, 0, 1), 1.5),
], False)
sketch15.addConstraint([
    Sketcher.Constraint("Equal", 0, 1),
    Sketcher.Constraint("Equal", 1, 2),
    Sketcher.Constraint("Equal", 2, 3),
    Sketcher.Constraint("Diameter", 0, 3.0),
    Sketcher.Constraint("DistanceX", -1, 1, 0, 3, 7.071),
    Sketcher.Constraint("DistanceY", -1, 1, 1, 3, 7.071),
    Sketcher.Constraint("DistanceX", -1, 1, 2, 3, 32.527),
    Sketcher.Constraint("DistanceY", 3, 3, -1, 1, 32.527),
    Sketcher.Constraint("DistanceY", 2, 3, 0, 3, 39.598),
    Sketcher.Constraint("DistanceY", -1, 1, 0, 3, 28.2843),
    Sketcher.Constraint("DistanceX", -1, 1, 1, 3, 28.2843),
    Sketcher.Constraint("DistanceX", -1, 1, 3, 3, 11.3137),
])
pocket13 = body.newObject("PartDesign::Pocket", "Pocket012")
pocket13.Profile = sketch15
pocket13.Type = "ThroughAll"
pocket13.Reversed = True

# Sketch on XY plane
sketch16 = body.newObject("Sketcher::SketchObject", "Sketch015")
sketch16.AttachmentSupport = (doc.getObject("XY_Plane"), [""])
sketch16.MapMode = "FlatFace"
sketch16.AttachmentOffset = App.Placement(Vector(0, 0, 55), App.Rotation())
sketch16.addGeometry([
    Part.Circle(Vector(7.0711, 28.2843, 0), Vector(0, 0, 1), 4),
    Part.Circle(Vector(28.2843, 7.0711, 0), Vector(0, 0, 1), 4),
    Part.Circle(Vector(32.5269, -11.3137, 0), Vector(0, 0, 1), 4),
    Part.Circle(Vector(11.3137, -32.5269, 0), Vector(0, 0, 1), 4),
], False)
sketch16.addConstraint([
    Sketcher.Constraint("Equal", 0, 1),
    Sketcher.Constraint("Equal", 1, 2),
    Sketcher.Constraint("Equal", 2, 3),
    Sketcher.Constraint("Diameter", 0, 8.0),
    Sketcher.Constraint("DistanceX", -1, 1, 0, 3, 7.071),
    Sketcher.Constraint("DistanceY", -1, 1, 1, 3, 7.071),
    Sketcher.Constraint("DistanceX", -1, 1, 2, 3, 32.527),
    Sketcher.Constraint("DistanceY", 3, 3, -1, 1, 32.527),
    Sketcher.Constraint("DistanceY", 2, 3, 0, 3, 39.598),
    Sketcher.Constraint("DistanceY", -1, 1, 0, 3, 28.2843),
    Sketcher.Constraint("DistanceX", -1, 1, 1, 3, 28.2843),
    Sketcher.Constraint("DistanceX", -1, 1, 3, 3, 11.3137),
])
pocket14 = body.newObject("PartDesign::Pocket", "Pocket013")
pocket14.Profile = sketch16
pocket14.Length = 4

# Sketch on XY plane
sketch17 = body.newObject("Sketcher::SketchObject", "Sketch016")
sketch17.AttachmentSupport = (doc.getObject("XY_Plane"), [""])
sketch17.MapMode = "FlatFace"
sketch17.AttachmentOffset = App.Placement(Vector(0, 0, 40), App.Rotation())
sketch17.addGeometry([
    Part.Circle(Vector(35, -75, 0), Vector(0, 0, 1), 1.5),
    Part.Circle(Vector(10, -50, 0), Vector(0, 0, 1), 1.5),
], False)
sketch17.addConstraint([
    Sketcher.Constraint("Equal", 0, 1),
    Sketcher.Constraint("Diameter", 0, 3.0),
    Sketcher.Constraint("DistanceX", -1, 1, 1, 3, 10.0),
    Sketcher.Constraint("DistanceY", 1, 3, -1, 1, 50.0),
    Sketcher.Constraint("DistanceX", 1, 3, 0, 3, 25.0),
    Sketcher.Constraint("DistanceY", 0, 3, 1, 3, 25.0),
])
pocket15 = body.newObject("PartDesign::Pocket", "Pocket014")
pocket15.Profile = sketch17
pocket15.Type = "ThroughAll"
pocket15.Reversed = True

# Sketch on XY plane
sketch18 = body.newObject("Sketcher::SketchObject", "Sketch017")
sketch18.AttachmentSupport = (doc.getObject("XY_Plane"), [""])
sketch18.MapMode = "FlatFace"
sketch18.AttachmentOffset = App.Placement(Vector(0, 0, 55), App.Rotation())
sketch18.addGeometry([
    Part.Circle(Vector(10, -50, 0), Vector(0, 0, 1), 4),
    Part.Circle(Vector(35, -75, 0), Vector(0, 0, 1), 4),
], False)
sketch18.addConstraint([
    Sketcher.Constraint("Equal", 0, 1),
    Sketcher.Constraint("Diameter", 0, 8.0),
    Sketcher.Constraint("DistanceX", -1, 1, 0, 3, 10.0),
    Sketcher.Constraint("DistanceY", 0, 3, -1, 1, 50.0),
    Sketcher.Constraint("DistanceX", -1, 1, 1, 3, 35.0),
    Sketcher.Constraint("DistanceY", 1, 3, -1, 1, 75.0),
])
pocket16 = body.newObject("PartDesign::Pocket", "Pocket015")
pocket16.Profile = sketch18
pocket16.Length = 4

doc.recompute()
